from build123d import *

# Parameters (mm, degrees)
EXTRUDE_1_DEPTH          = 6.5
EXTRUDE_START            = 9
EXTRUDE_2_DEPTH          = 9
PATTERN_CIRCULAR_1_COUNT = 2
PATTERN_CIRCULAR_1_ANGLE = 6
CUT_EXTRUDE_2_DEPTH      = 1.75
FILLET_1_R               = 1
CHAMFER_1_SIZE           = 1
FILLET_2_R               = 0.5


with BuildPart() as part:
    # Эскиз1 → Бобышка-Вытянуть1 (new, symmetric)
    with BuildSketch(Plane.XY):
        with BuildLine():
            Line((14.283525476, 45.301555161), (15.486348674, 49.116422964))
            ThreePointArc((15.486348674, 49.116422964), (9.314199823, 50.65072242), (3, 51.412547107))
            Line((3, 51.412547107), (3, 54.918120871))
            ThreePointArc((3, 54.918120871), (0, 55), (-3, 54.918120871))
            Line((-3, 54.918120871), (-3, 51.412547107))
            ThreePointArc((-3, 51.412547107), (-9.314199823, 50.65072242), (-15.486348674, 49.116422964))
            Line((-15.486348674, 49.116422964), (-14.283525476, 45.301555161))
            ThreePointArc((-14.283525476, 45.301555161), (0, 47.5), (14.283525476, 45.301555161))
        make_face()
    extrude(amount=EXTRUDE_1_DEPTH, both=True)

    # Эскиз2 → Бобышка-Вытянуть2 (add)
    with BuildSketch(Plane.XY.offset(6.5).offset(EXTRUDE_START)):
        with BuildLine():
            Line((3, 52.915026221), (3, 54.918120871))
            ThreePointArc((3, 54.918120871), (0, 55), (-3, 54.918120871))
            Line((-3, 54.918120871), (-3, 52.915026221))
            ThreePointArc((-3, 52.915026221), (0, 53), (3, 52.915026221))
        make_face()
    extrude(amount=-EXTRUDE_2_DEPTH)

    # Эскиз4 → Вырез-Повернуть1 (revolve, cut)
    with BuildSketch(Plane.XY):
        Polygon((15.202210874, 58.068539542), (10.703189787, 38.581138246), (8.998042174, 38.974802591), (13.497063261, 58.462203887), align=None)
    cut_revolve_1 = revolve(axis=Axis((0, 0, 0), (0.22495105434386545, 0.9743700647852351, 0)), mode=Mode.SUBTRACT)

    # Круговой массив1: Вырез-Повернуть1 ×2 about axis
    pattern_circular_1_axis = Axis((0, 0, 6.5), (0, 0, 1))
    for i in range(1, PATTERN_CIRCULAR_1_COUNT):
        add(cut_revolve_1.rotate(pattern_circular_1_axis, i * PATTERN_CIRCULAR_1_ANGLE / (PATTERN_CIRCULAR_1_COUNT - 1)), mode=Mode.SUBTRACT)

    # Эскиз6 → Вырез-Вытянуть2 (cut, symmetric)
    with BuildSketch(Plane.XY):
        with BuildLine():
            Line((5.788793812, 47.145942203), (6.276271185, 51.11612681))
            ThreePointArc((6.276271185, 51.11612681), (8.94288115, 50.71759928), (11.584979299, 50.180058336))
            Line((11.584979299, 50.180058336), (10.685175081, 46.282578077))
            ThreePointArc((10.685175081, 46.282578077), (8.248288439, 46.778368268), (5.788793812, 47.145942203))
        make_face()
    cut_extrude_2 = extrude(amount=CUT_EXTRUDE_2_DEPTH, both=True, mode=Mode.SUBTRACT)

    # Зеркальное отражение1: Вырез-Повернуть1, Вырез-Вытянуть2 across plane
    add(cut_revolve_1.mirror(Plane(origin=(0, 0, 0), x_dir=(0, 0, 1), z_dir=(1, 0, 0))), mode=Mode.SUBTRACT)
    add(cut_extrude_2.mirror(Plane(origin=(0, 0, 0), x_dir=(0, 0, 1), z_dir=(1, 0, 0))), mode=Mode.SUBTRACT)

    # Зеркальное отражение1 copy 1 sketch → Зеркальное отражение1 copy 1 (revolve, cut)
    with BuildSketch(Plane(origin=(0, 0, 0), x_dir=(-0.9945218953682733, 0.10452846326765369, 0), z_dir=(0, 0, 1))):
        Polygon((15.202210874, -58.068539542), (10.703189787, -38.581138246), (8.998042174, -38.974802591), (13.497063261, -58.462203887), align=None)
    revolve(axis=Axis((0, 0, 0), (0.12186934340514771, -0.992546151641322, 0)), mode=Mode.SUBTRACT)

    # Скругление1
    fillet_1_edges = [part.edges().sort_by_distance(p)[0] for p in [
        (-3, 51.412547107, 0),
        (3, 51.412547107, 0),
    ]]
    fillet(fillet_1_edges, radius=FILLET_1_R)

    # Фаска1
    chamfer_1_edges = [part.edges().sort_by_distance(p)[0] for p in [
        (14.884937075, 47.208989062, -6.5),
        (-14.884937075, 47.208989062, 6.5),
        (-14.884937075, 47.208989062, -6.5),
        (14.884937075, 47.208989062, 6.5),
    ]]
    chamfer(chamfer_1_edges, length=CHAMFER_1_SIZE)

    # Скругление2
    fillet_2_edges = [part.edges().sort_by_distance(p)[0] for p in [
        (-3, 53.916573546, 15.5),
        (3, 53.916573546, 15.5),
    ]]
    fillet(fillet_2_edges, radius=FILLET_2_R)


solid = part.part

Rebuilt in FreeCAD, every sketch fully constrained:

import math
import FreeCAD as App
import Part
import Sketcher
Q = App.Units.Quantity


def edges_at(feature, points):
    """Names of the edges that pass closest to the given points."""
    edges = feature.Shape.Edges
    near = lambda p: min(range(len(edges)), key=lambda i: edges[i].distToShape(Part.Vertex(*p))[0])
    return sorted({f"Edge{near(p) + 1}" for p in points})


def add_polygon(sketch, points):
    """Adds a closed chain of lines whose ends are joined by coincident constraints."""
    first, n = sketch.GeometryCount, len(points)
    for a, b in zip(points, points[1:] + points[:1]):
        sketch.addGeometry(Part.LineSegment(App.Vector(*a, 0), App.Vector(*b, 0)), False)
    for i in range(n):
        sketch.addConstraint(Sketcher.Constraint("Coincident", first + i, 2, first + (i + 1) % n, 1))

doc = App.newDocument("Part")
body = doc.addObject("PartDesign::Body", "Body")

# Sketch on XY plane
sketch1 = body.newObject("Sketcher::SketchObject", "Sketch")
sketch1.AttachmentSupport = (doc.getObject("XY_Plane"), [""])
sketch1.MapMode = "FlatFace"
sketch1.addGeometry(Part.LineSegment(App.Vector(14.3, 45.3, 0), App.Vector(15.5, 49.1, 0)), False)
sketch1.addGeometry(Part.ArcOfCircle(Part.Circle(App.Vector(0, 0, 0), App.Vector(0, 0, 1), 51.5), math.radians(72.5), math.radians(86.66)), False)
sketch1.addGeometry(Part.LineSegment(App.Vector(3, 51.4, 0), App.Vector(3, 54.9, 0)), False)
sketch1.addGeometry(Part.ArcOfCircle(Part.Circle(App.Vector(0, 0, 0), App.Vector(0, 0, 1), 55), math.radians(86.87), math.radians(93.13)), False)
sketch1.addGeometry(Part.LineSegment(App.Vector(-3, 54.9, 0), App.Vector(-3, 51.4, 0)), False)
sketch1.addGeometry(Part.ArcOfCircle(Part.Circle(App.Vector(0, 0, 0), App.Vector(0, 0, 1), 51.5), math.radians(93.34), math.radians(107.5)), False)
sketch1.addGeometry(Part.LineSegment(App.Vector(-15.5, 49.1, 0), App.Vector(-14.3, 45.3, 0)), False)
sketch1.addGeometry(Part.ArcOfCircle(Part.Circle(App.Vector(0, 0, 0), App.Vector(0, 0, 1), 47.5), math.radians(73), math.radians(107)), False)
sketch1.addConstraint(Sketcher.Constraint("Coincident", 0, 2, 1, 1))
sketch1.addConstraint(Sketcher.Constraint("Coincident", 1, 2, 2, 1))
sketch1.addConstraint(Sketcher.Constraint("Coincident", 2, 2, 3, 1))
sketch1.addConstraint(Sketcher.Constraint("Coincident", 3, 2, 4, 1))
sketch1.addConstraint(Sketcher.Constraint("Coincident", 4, 2, 5, 1))
sketch1.addConstraint(Sketcher.Constraint("Coincident", 5, 2, 6, 1))
sketch1.addConstraint(Sketcher.Constraint("Coincident", 6, 2, 7, 2))
sketch1.addConstraint(Sketcher.Constraint("Coincident", 7, 1, 0, 1))
sketch1.addConstraint(Sketcher.Constraint("Vertical", 2))
sketch1.addConstraint(Sketcher.Constraint("Vertical", 4))
sketch1.addConstraint(Sketcher.Constraint("Coincident", 1, 3, -1, 1))
sketch1.addConstraint(Sketcher.Constraint("Coincident", 3, 3, -1, 1))
sketch1.addConstraint(Sketcher.Constraint("Coincident", 5, 3, -1, 1))
sketch1.addConstraint(Sketcher.Constraint("Coincident", 7, 3, -1, 1))
sketch1.addConstraint(Sketcher.Constraint("Equal", 1, 5))
sketch1.addConstraint(Sketcher.Constraint("Horizontal", 2, 2, 3, 2))
sketch1.addConstraint(Sketcher.Constraint("Horizontal", 0, 2, 5, 2))
sketch1.addConstraint(Sketcher.Constraint("Horizontal", 6, 2, 7, 1))
sketch1.addConstraint(Sketcher.Constraint("Radius", 3, Q("55 mm")))
sketch1.addConstraint(Sketcher.Constraint("Radius", 1, Q("51.5 mm")))
sketch1.addConstraint(Sketcher.Constraint("Radius", 7, Q("47.5 mm")))
sketch1.addConstraint(Sketcher.Constraint("DistanceX", -1, 1, 1, 2, Q("3 mm")))
sketch1.addConstraint(Sketcher.Constraint("Angle", 0, Q("72.5 deg")))
sketch1.addConstraint(Sketcher.Constraint("DistanceX", -1, 1, 0, 2, Q("15.486349 mm")))
pad1 = body.newObject("PartDesign::Pad", "Pad")
pad1.Profile = sketch1
pad1.Length = 13
pad1.Midplane = True

# Sketch on XY plane
sketch2 = body.newObject("Sketcher::SketchObject", "Sketch001")
sketch2.AttachmentSupport = (doc.getObject("XY_Plane"), [""])
sketch2.MapMode = "FlatFace"
sketch2.AttachmentOffset = App.Placement(App.Vector(0, 0, 15.5), App.Rotation())
sketch2.addGeometry(Part.LineSegment(App.Vector(3, 52.9, 0), App.Vector(3, 54.9, 0)), False)
sketch2.addGeometry(Part.ArcOfCircle(Part.Circle(App.Vector(0, 0, 0), App.Vector(0, 0, 1), 55), math.radians(86.87), math.radians(93.13)), False)
sketch2.addGeometry(Part.LineSegment(App.Vector(-3, 54.9, 0), App.Vector(-3, 52.9, 0)), False)
sketch2.addGeometry(Part.ArcOfCircle(Part.Circle(App.Vector(0, 0, 0), App.Vector(0, 0, 1), 53), math.radians(86.76), math.radians(93.24)), False)
sketch2.addConstraint(Sketcher.Constraint("Coincident", 0, 2, 1, 1))
sketch2.addConstraint(Sketcher.Constraint("Coincident", 1, 2, 2, 1))
sketch2.addConstraint(Sketcher.Constraint("Coincident", 2, 2, 3, 2))
sketch2.addConstraint(Sketcher.Constraint("Coincident", 3, 1, 0, 1))
sketch2.addConstraint(Sketcher.Constraint("Vertical", 0))
sketch2.addConstraint(Sketcher.Constraint("Vertical", 2))
sketch2.addConstraint(Sketcher.Constraint("Coincident", 1, 3, -1, 1))
sketch2.addConstraint(Sketcher.Constraint("Coincident", 3, 3, -1, 1))
sketch2.addConstraint(Sketcher.Constraint("Horizontal", 0, 2, 1, 2))
sketch2.addConstraint(Sketcher.Constraint("Radius", 1, Q("55 mm")))
sketch2.addConstraint(Sketcher.Constraint("Radius", 3, Q("53 mm")))
sketch2.addConstraint(Sketcher.Constraint("DistanceX", -1, 1, 0, 2, Q("3 mm")))
pad2 = body.newObject("PartDesign::Pad", "Pad001")
pad2.Profile = sketch2
pad2.Length = 9
pad2.Reversed = True

# Sketch on XY plane
sketch3 = body.newObject("Sketcher::SketchObject", "Sketch002")
sketch3.AttachmentSupport = (doc.getObject("XY_Plane"), [""])
sketch3.MapMode = "FlatFace"
add_polygon(sketch3, [(10.7, 38.6), (15.2, 58.1), (13.5, 58.5), (9, 39)])  # lines 0-3
sketch3.addGeometry(Part.LineSegment(App.Vector(9, 39, 0), App.Vector(13.5, 58.5, 0)), True)  # axis
sketch3.addConstraint(Sketcher.Constraint("Coincident", 4, 1, 2, 2))
sketch3.addConstraint(Sketcher.Constraint("Coincident", 4, 2, 1, 2))
sketch3.addConstraint(Sketcher.Constraint("Perpendicular", 0, 1))
sketch3.addConstraint(Sketcher.Constraint("Perpendicular", 1, 2))
sketch3.addConstraint(Sketcher.Constraint("Perpendicular", 2, 3))
sketch3.addConstraint(Sketcher.Constraint("Angle", 0, Q("77 deg")))
sketch3.addConstraint(Sketcher.Constraint("Distance", 0, Q("20 mm")))
sketch3.addConstraint(Sketcher.Constraint("Distance", 1, Q("1.75 mm")))
sketch3.addConstraint(Sketcher.Constraint("DistanceX", -1, 1, 0, 2, Q("15.202211 mm")))
sketch3.addConstraint(Sketcher.Constraint("DistanceY", -1, 1, 0, 2, Q("58.06854 mm")))
groove = body.newObject("PartDesign::Groove", "Groove")
groove.Profile = sketch3
groove.ReferenceAxis = (sketch3, ["Axis0"])
groove.Angle = 360
doc.recompute()

polarpattern = body.newObject("PartDesign::PolarPattern", "PolarPattern")
polarpattern.Originals = [groove]
polarpattern.Axis = (doc.getObject("Z_Axis"), [""])
polarpattern.Angle = 6
polarpattern.Occurrences = 2
body.Tip = polarpattern

# Sketch on XY plane
sketch4 = body.newObject("Sketcher::SketchObject", "Sketch003")
sketch4.AttachmentSupport = (doc.getObject("XY_Plane"), [""])
sketch4.MapMode = "FlatFace"
sketch4.addGeometry(Part.LineSegment(App.Vector(6.3, 51.1, 0), App.Vector(5.8, 47.1, 0)), False)
sketch4.addGeometry(Part.ArcOfCircle(Part.Circle(App.Vector(0, 0, 0), App.Vector(0, 0, 1), 47.5), math.radians(77), math.radians(83)), False)
sketch4.addGeometry(Part.LineSegment(App.Vector(10.7, 46.3, 0), App.Vector(11.6, 50.2, 0)), False)
sketch4.addGeometry(Part.ArcOfCircle(Part.Circle(App.Vector(0, 0, 0), App.Vector(0, 0, 1), 51.5), math.radians(77), math.radians(83)), False)
sketch4.addConstraint(Sketcher.Constraint("Coincident", 0, 2, 1, 2))
sketch4.addConstraint(Sketcher.Constraint("Coincident", 1, 1, 2, 1))
sketch4.addConstraint(Sketcher.Constraint("Coincident", 2, 2, 3, 1))
sketch4.addConstraint(Sketcher.Constraint("Coincident", 3, 2, 0, 1))
sketch4.addConstraint(Sketcher.Constraint("Coincident", 1, 3, -1, 1))
sketch4.addConstraint(Sketcher.Constraint("Coincident", 3, 3, -1, 1))
sketch4.addConstraint(Sketcher.Constraint("Radius", 1, Q("47.5 mm")))
sketch4.addConstraint(Sketcher.Constraint("Radius", 3, Q("51.5 mm")))
sketch4.addConstraint(Sketcher.Constraint("Angle", 0, Q("-97 deg")))
sketch4.addConstraint(Sketcher.Constraint("Angle", 2, Q("77 deg")))
sketch4.addConstraint(Sketcher.Constraint("DistanceY", -1, 1, 1, 1, Q("46.282578 mm")))
sketch4.addConstraint(Sketcher.Constraint("DistanceX", -1, 1, 3, 2, Q("6.276271 mm")))
pocket1 = body.newObject("PartDesign::Pocket", "Pocket")
pocket1.Profile = sketch4
pocket1.Length = 3.5
pocket1.Midplane = True
doc.recompute()

mirrored = body.newObject("PartDesign::Mirrored", "Mirrored")
mirrored.Originals = [groove, pocket1]
mirrored.MirrorPlane = (doc.getObject("YZ_Plane"), [""])
body.Tip = mirrored

# Sketch on XY plane
sketch5 = body.newObject("Sketcher::SketchObject", "Sketch004")
sketch5.AttachmentSupport = (doc.getObject("XY_Plane"), [""])
sketch5.MapMode = "FlatFace"
add_polygon(sketch5, [(-9, 59.3), (-6.6, 39.5), (-4.9, 39.7), (-7.3, 59.6)])  # lines 0-3
sketch5.addGeometry(Part.LineSegment(App.Vector(-7.3, 59.6, 0), App.Vector(-4.9, 39.7, 0)), True)  # axis
sketch5.addConstraint(Sketcher.Constraint("Coincident", 4, 1, 2, 2))
sketch5.addConstraint(Sketcher.Constraint("Coincident", 4, 2, 1, 2))
sketch5.addConstraint(Sketcher.Constraint("Perpendicular", 0, 1))
sketch5.addConstraint(Sketcher.Constraint("Perpendicular", 1, 2))
sketch5.addConstraint(Sketcher.Constraint("Perpendicular", 2, 3))
sketch5.addConstraint(Sketcher.Constraint("Angle", 0, Q("-83 deg")))
sketch5.addConstraint(Sketcher.Constraint("Distance", 0, Q("20 mm")))
sketch5.addConstraint(Sketcher.Constraint("Distance", 1, Q("1.75 mm")))
sketch5.addConstraint(Sketcher.Constraint("DistanceX", 0, 2, -1, 1, Q("6.61173 mm")))
sketch5.addConstraint(Sketcher.Constraint("DistanceY", -1, 1, 2, 2, Q("59.552769 mm")))
groove2 = body.newObject("PartDesign::Groove", "Groove001")
groove2.Profile = sketch5
groove2.ReferenceAxis = (sketch5, ["Axis0"])
groove2.Angle = 360
doc.recompute()

fillet = body.newObject("PartDesign::Fillet", "Fillet")
fillet.Base = (groove2, edges_at(groove2, [(-3, 51.413, 0), (3, 51.413, 0)]))
fillet.Radius = 1
doc.recompute()

chamfer = body.newObject("PartDesign::Chamfer", "Chamfer")
chamfer.Base = (fillet, edges_at(fillet, [
    (14.885, 47.209, -6.5),
    (-14.885, 47.209, 6.5),
    (-14.885, 47.209, -6.5),
    (14.885, 47.209, 6.5),
]))
chamfer.Size = 1
doc.recompute()

fillet2 = body.newObject("PartDesign::Fillet", "Fillet001")
fillet2.Base = (chamfer, edges_at(chamfer, [(-3, 53.917, 15.5), (3, 53.917, 15.5)]))
fillet2.Radius = 0.5

doc.recompute()
